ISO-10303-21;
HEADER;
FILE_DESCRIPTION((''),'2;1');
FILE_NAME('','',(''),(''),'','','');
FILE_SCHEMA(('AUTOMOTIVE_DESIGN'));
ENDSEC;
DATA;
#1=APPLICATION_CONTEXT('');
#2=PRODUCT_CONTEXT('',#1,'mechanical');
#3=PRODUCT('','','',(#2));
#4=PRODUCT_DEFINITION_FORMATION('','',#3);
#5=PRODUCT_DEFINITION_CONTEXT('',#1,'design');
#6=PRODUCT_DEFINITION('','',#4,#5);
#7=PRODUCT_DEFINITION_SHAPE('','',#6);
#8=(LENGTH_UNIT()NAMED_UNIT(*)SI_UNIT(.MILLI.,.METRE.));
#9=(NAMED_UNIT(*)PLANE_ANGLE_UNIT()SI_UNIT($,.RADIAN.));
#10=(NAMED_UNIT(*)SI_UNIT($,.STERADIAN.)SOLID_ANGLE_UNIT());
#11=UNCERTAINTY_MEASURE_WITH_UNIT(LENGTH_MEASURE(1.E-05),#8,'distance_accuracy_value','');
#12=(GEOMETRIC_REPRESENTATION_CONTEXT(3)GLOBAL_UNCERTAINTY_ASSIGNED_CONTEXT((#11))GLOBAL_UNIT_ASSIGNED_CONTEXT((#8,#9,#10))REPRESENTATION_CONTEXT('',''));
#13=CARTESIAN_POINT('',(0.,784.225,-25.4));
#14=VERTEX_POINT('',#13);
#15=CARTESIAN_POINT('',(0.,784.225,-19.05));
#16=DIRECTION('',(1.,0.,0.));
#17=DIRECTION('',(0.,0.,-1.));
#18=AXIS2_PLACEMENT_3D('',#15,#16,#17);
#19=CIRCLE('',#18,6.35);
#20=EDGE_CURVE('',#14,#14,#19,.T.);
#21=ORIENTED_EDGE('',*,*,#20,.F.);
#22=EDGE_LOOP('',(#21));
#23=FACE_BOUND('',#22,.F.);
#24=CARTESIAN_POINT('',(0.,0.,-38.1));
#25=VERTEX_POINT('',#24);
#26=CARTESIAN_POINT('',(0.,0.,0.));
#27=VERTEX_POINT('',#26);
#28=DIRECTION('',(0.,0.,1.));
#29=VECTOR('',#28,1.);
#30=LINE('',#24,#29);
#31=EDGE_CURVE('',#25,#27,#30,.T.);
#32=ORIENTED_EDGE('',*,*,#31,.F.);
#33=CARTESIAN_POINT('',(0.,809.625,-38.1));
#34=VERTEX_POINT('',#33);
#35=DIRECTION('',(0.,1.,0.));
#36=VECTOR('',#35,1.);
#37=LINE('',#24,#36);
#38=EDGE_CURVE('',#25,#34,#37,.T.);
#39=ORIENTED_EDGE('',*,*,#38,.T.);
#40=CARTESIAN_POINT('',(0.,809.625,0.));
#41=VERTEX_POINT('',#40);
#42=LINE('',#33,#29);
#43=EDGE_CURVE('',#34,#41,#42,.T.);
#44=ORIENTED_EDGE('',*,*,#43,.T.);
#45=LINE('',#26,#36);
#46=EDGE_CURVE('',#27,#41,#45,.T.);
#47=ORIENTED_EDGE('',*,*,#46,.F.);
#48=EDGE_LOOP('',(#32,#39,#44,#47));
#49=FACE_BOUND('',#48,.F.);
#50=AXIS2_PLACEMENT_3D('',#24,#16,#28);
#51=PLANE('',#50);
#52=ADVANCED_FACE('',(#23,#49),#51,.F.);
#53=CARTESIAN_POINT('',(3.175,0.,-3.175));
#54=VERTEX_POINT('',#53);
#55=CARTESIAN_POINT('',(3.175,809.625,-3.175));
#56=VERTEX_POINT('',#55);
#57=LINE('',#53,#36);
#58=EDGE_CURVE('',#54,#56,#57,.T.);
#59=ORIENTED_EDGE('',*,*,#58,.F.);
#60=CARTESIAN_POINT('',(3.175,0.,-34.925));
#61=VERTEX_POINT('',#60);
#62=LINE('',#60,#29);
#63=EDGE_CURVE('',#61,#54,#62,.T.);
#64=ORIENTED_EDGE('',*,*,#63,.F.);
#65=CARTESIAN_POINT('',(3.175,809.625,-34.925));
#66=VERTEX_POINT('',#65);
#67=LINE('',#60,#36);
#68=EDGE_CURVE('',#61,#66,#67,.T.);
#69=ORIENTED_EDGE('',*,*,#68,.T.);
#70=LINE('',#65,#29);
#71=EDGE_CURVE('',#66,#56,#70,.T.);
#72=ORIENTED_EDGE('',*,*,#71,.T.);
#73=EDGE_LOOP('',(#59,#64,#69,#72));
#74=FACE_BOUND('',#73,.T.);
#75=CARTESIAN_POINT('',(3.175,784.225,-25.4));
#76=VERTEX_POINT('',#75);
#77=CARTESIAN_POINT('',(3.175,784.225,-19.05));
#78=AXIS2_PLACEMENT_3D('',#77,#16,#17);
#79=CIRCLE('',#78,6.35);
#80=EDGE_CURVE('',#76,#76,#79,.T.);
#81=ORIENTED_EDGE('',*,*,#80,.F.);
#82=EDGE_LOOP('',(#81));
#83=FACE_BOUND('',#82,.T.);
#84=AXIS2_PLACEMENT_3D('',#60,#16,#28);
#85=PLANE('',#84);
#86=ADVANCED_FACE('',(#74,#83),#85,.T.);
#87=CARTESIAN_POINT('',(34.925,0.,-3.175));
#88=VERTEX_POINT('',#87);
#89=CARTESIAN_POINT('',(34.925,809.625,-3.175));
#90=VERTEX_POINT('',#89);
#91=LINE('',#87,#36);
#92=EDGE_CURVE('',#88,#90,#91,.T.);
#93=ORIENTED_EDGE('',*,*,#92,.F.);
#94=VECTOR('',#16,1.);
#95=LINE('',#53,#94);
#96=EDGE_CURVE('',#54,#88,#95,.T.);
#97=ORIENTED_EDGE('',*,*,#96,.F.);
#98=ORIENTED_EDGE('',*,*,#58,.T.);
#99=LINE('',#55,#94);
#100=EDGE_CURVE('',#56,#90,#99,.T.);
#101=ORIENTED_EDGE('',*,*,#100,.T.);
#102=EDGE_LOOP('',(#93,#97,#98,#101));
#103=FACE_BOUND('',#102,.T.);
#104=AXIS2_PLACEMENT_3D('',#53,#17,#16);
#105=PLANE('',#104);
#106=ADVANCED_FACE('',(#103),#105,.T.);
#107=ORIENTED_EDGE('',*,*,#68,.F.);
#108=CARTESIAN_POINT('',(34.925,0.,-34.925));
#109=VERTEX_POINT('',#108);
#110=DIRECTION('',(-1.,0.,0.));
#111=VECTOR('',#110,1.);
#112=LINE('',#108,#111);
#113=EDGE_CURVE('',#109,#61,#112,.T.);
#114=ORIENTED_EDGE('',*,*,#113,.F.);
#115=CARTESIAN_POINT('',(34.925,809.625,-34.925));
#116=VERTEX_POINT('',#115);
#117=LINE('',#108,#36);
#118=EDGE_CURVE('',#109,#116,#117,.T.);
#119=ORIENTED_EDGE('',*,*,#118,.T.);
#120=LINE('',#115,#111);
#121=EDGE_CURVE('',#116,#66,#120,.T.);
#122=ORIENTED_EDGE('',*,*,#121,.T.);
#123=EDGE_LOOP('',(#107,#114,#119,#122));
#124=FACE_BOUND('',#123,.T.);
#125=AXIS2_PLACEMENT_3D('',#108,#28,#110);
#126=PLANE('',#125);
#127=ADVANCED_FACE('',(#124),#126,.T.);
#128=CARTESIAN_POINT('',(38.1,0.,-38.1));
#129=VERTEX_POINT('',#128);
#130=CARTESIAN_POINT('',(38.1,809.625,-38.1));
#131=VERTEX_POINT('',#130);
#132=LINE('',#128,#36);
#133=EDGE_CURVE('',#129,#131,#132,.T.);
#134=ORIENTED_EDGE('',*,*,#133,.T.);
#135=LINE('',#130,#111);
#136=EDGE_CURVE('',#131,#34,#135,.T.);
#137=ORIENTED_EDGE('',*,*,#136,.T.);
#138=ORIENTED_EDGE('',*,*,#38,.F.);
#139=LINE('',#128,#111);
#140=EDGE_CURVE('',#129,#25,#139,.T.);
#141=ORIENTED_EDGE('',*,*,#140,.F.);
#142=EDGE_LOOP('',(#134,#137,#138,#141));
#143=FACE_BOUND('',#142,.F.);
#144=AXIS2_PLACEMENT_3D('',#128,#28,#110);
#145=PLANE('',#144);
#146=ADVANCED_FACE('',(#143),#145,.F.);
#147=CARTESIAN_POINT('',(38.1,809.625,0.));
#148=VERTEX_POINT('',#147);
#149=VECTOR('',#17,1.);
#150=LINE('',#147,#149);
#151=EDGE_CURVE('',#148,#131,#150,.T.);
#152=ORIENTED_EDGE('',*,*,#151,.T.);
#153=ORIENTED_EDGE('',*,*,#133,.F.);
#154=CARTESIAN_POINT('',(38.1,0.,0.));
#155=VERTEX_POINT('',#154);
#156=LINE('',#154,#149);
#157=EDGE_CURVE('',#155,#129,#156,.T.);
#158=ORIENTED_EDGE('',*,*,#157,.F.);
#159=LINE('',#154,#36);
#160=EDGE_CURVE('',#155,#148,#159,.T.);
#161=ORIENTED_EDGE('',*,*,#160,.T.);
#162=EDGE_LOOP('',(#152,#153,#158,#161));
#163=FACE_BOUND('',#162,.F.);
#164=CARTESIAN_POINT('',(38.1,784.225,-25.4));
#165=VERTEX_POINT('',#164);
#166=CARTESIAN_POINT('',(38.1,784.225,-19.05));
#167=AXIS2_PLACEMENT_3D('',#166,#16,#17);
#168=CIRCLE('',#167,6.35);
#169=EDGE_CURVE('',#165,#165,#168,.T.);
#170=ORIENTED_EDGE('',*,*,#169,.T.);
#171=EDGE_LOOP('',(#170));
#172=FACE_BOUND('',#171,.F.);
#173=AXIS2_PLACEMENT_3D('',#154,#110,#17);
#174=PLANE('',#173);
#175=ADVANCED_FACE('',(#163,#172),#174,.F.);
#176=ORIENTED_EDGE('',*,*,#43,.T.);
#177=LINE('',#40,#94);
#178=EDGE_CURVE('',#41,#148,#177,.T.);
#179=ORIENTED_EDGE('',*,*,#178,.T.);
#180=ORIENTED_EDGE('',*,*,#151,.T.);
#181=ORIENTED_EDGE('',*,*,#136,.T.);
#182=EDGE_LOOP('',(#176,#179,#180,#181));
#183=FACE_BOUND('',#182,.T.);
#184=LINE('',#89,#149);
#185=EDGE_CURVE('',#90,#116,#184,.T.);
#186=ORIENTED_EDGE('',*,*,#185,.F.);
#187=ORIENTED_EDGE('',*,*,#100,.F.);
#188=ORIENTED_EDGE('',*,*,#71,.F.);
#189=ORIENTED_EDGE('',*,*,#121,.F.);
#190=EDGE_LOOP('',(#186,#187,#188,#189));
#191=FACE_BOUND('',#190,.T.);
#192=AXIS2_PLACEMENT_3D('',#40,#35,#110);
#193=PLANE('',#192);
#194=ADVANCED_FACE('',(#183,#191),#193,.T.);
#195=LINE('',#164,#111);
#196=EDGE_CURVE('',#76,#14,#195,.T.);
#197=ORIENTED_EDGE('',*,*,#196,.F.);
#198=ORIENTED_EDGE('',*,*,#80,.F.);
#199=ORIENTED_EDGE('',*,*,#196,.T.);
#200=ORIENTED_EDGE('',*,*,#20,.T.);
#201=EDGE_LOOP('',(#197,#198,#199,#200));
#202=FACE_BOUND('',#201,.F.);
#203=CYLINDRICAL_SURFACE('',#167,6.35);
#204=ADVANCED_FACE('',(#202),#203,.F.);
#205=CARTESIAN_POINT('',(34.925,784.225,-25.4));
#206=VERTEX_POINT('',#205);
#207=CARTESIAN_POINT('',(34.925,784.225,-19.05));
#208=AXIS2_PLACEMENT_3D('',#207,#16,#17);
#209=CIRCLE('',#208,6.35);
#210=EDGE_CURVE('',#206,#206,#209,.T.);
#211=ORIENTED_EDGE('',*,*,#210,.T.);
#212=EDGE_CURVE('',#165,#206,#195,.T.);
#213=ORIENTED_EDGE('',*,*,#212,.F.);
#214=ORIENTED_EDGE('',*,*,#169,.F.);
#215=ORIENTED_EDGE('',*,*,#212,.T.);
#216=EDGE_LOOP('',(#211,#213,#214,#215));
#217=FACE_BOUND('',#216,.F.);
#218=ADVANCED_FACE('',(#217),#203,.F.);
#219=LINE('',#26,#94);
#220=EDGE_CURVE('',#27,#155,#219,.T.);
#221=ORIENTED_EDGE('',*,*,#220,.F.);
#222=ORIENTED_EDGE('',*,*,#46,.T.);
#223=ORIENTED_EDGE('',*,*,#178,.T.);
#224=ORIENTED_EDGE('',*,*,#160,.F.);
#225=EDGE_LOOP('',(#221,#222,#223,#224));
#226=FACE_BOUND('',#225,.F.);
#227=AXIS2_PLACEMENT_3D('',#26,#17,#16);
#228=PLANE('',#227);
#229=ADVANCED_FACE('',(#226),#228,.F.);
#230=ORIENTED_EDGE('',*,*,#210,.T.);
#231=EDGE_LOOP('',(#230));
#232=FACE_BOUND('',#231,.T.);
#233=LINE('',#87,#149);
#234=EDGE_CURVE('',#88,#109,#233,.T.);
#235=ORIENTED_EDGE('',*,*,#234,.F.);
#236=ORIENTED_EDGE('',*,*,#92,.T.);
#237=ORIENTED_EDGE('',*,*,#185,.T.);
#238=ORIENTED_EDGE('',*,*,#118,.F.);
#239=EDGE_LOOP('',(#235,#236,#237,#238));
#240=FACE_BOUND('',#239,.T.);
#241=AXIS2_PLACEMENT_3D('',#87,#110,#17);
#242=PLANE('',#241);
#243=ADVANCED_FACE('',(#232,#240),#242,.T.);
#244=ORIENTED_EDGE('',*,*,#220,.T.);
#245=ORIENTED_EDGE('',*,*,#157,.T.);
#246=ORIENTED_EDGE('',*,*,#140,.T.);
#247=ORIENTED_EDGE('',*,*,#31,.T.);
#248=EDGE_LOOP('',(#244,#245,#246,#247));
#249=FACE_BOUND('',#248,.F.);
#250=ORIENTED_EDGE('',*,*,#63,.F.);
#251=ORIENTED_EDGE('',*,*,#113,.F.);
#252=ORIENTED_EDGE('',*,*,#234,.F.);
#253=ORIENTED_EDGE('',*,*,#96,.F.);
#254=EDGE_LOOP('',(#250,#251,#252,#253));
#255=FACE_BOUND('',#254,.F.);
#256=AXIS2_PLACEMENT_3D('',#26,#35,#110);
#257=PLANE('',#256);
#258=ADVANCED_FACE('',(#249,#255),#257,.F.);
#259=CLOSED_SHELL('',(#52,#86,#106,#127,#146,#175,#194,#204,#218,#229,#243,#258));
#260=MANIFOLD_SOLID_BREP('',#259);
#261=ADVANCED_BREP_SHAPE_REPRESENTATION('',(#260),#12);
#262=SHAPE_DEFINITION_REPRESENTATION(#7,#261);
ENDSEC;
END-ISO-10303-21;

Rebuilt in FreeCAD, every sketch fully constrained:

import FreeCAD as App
import Part
import Sketcher
Q = App.Units.Quantity


def add_polygon(sketch, points):
    """Adds a closed chain of lines whose ends are joined by coincident constraints."""
    first, n = sketch.GeometryCount, len(points)
    for a, b in zip(points, points[1:] + points[:1]):
        sketch.addGeometry(Part.LineSegment(App.Vector(*a, 0), App.Vector(*b, 0)), False)
    for i in range(n):
        sketch.addConstraint(Sketcher.Constraint("Coincident", first + i, 2, first + (i + 1) % n, 1))

doc = App.newDocument("Part")
body = doc.addObject("PartDesign::Body", "Body")

# Sketch on XZ plane
sketch1 = body.newObject("Sketcher::SketchObject", "Sketch")
sketch1.AttachmentSupport = (doc.getObject("XZ_Plane"), [""])
sketch1.MapMode = "FlatFace"
add_polygon(sketch1, [(0, -38.1), (0, 0), (38.1, 0), (38.1, -38.1)])  # lines 0-3
add_polygon(sketch1, [(34.925, -3.175), (3.175, -3.175), (3.175, -34.925), (34.925, -34.925)])  # lines 4-7
sketch1.addConstraint([
    Sketcher.Constraint("Vertical", 0),
    Sketcher.Constraint("Horizontal", 1),
    Sketcher.Constraint("Vertical", 2),
    Sketcher.Constraint("Horizontal", 3),
    Sketcher.Constraint("Horizontal", 4),
    Sketcher.Constraint("Vertical", 5),
    Sketcher.Constraint("Horizontal", 6),
    Sketcher.Constraint("Vertical", 7),
    Sketcher.Constraint("Coincident", 0, 2, -1, 1),
    Sketcher.Constraint("Equal", 3, 0),
    Sketcher.Constraint("Equal", 6, 5),
    Sketcher.Constraint("DistanceX", 1, 1, 1, 2, Q("1.5 in")),
    Sketcher.Constraint("DistanceX", -1, 1, 4, 2, Q("0.125 in")),
    Sketcher.Constraint("DistanceY", 4, 2, -1, 1, Q("0.125 in")),
    Sketcher.Constraint("DistanceY", 3, 2, 5, 2, Q("0.125 in")),
])
pad1 = body.newObject("PartDesign::Pad", "Pad")
pad1.Profile = sketch1
pad1.Length = Q("31.875 in")
pad1.Reversed = True

# Sketch on YZ plane
sketch2 = body.newObject("Sketcher::SketchObject", "Sketch001")
sketch2.AttachmentSupport = (doc.getObject("YZ_Plane"), [""])
sketch2.MapMode = "FlatFace"
sketch2.AttachmentOffset = App.Placement(App.Vector(0, 0, 1.5 * 25.4), App.Rotation())
sketch2.addGeometry(Part.Circle(App.Vector(784.225, -19.05, 0), App.Vector(0, 0, 1), 6.35), False)
sketch2.addConstraint([
    Sketcher.Constraint("Diameter", 0, Q("0.5 in")),
    Sketcher.Constraint("DistanceY", 0, 3, -1, 1, Q("0.75 in")),
    Sketcher.Constraint("DistanceX", -1, 1, 0, 3, Q("30.875 in")),
])
pocket1 = body.newObject("PartDesign::Pocket", "Pocket")
pocket1.Profile = sketch2
pocket1.Type = "ThroughAll"

doc.recompute()
